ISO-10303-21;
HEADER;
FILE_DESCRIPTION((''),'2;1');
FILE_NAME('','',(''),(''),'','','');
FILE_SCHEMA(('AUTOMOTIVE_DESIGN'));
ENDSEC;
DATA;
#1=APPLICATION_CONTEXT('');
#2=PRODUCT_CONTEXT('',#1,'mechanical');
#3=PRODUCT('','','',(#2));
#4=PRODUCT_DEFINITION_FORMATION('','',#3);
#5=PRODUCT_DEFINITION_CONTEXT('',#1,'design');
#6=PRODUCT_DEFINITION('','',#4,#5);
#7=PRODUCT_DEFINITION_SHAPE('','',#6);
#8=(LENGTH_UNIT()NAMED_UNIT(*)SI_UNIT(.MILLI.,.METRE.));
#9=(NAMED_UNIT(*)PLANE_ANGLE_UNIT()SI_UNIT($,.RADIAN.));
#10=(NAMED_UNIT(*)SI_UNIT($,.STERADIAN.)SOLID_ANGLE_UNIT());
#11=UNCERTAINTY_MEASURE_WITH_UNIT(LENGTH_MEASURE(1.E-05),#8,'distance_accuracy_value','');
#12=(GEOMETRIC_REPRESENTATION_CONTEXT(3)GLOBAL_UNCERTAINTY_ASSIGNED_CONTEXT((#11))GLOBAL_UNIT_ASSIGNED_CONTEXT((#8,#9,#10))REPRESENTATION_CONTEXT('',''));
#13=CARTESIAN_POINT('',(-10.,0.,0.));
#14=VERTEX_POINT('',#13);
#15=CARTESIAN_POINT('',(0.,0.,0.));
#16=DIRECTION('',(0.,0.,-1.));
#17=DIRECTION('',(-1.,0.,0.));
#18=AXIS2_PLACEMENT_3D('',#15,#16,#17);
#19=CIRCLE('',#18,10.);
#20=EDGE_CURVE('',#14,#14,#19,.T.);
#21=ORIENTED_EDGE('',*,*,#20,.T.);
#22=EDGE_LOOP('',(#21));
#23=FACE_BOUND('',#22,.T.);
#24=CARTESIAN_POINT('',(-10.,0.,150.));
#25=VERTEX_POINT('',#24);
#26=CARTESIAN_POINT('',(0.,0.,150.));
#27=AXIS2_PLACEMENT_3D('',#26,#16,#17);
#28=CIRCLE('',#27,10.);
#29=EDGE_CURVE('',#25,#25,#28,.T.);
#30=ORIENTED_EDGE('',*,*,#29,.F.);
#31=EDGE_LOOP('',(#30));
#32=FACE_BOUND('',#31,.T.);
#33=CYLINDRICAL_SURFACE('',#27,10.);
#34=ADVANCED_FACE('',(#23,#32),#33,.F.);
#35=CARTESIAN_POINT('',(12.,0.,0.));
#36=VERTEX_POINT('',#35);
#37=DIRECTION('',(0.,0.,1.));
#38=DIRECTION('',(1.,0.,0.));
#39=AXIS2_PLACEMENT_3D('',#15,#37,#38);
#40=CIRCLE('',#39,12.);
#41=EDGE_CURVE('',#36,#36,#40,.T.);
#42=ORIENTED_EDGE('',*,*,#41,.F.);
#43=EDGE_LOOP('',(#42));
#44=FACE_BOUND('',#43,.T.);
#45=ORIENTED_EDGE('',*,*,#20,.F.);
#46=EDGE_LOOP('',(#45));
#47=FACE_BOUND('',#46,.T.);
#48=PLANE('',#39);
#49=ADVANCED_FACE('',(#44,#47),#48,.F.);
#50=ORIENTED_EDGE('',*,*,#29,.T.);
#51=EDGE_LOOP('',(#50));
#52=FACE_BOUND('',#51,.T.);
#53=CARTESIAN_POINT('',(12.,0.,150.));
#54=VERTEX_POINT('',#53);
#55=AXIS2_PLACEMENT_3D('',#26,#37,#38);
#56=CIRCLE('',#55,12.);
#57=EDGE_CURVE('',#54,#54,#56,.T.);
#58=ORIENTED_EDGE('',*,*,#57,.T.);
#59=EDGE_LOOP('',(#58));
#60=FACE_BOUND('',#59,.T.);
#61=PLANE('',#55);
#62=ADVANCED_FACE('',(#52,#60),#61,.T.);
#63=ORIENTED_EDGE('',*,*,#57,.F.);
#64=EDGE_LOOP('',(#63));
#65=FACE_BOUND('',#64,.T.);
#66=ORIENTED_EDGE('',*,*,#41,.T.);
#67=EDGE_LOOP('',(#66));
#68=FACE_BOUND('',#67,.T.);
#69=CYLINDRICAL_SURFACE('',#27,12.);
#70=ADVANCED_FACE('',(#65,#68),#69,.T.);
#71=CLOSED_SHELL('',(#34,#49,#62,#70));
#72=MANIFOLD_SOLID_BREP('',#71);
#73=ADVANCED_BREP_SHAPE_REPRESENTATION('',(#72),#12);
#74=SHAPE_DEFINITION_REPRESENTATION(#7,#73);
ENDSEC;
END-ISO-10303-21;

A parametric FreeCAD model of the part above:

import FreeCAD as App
import Part
import Sketcher

doc = App.newDocument("Part")
body = doc.addObject("PartDesign::Body", "Body")

# Sketch on XY plane
sketch1 = doc.addObject("Sketcher::SketchObject", "Sketch")
body.addObject(sketch1)
sketch1.AttachmentSupport = (doc.XY_Plane, [""])
sketch1.MapMode = "FlatFace"
sketch1.addGeometry(Part.Circle(App.Vector(0, 0, 0), App.Vector(0, 0, 1), 12), False)
sketch1.addConstraint([
    Sketcher.Constraint("Coincident", 0, 3, -1, 1),
    Sketcher.Constraint("Diameter", 0, 24.0),
])
pad1 = doc.addObject("PartDesign::Pad", "Pad")
body.addObject(pad1)
pad1.Profile = sketch1
pad1.Length = 150

# Sketch on XY plane
sketch2 = doc.addObject("Sketcher::SketchObject", "Sketch001")
body.addObject(sketch2)
sketch2.AttachmentSupport = (doc.XY_Plane, [""])
sketch2.MapMode = "FlatFace"
sketch2.addGeometry(Part.Circle(App.Vector(0, 0, 0), App.Vector(0, 0, 1), 10), False)
sketch2.addConstraint([
    Sketcher.Constraint("Coincident", 0, 3, -1, 1),
    Sketcher.Constraint("Diameter", 0, 20.0),
])
pocket1 = doc.addObject("PartDesign::Pocket", "Pocket")
body.addObject(pocket1)
pocket1.Profile = sketch2
pocket1.Length = 150
pocket1.Reversed = True

doc.recompute()
